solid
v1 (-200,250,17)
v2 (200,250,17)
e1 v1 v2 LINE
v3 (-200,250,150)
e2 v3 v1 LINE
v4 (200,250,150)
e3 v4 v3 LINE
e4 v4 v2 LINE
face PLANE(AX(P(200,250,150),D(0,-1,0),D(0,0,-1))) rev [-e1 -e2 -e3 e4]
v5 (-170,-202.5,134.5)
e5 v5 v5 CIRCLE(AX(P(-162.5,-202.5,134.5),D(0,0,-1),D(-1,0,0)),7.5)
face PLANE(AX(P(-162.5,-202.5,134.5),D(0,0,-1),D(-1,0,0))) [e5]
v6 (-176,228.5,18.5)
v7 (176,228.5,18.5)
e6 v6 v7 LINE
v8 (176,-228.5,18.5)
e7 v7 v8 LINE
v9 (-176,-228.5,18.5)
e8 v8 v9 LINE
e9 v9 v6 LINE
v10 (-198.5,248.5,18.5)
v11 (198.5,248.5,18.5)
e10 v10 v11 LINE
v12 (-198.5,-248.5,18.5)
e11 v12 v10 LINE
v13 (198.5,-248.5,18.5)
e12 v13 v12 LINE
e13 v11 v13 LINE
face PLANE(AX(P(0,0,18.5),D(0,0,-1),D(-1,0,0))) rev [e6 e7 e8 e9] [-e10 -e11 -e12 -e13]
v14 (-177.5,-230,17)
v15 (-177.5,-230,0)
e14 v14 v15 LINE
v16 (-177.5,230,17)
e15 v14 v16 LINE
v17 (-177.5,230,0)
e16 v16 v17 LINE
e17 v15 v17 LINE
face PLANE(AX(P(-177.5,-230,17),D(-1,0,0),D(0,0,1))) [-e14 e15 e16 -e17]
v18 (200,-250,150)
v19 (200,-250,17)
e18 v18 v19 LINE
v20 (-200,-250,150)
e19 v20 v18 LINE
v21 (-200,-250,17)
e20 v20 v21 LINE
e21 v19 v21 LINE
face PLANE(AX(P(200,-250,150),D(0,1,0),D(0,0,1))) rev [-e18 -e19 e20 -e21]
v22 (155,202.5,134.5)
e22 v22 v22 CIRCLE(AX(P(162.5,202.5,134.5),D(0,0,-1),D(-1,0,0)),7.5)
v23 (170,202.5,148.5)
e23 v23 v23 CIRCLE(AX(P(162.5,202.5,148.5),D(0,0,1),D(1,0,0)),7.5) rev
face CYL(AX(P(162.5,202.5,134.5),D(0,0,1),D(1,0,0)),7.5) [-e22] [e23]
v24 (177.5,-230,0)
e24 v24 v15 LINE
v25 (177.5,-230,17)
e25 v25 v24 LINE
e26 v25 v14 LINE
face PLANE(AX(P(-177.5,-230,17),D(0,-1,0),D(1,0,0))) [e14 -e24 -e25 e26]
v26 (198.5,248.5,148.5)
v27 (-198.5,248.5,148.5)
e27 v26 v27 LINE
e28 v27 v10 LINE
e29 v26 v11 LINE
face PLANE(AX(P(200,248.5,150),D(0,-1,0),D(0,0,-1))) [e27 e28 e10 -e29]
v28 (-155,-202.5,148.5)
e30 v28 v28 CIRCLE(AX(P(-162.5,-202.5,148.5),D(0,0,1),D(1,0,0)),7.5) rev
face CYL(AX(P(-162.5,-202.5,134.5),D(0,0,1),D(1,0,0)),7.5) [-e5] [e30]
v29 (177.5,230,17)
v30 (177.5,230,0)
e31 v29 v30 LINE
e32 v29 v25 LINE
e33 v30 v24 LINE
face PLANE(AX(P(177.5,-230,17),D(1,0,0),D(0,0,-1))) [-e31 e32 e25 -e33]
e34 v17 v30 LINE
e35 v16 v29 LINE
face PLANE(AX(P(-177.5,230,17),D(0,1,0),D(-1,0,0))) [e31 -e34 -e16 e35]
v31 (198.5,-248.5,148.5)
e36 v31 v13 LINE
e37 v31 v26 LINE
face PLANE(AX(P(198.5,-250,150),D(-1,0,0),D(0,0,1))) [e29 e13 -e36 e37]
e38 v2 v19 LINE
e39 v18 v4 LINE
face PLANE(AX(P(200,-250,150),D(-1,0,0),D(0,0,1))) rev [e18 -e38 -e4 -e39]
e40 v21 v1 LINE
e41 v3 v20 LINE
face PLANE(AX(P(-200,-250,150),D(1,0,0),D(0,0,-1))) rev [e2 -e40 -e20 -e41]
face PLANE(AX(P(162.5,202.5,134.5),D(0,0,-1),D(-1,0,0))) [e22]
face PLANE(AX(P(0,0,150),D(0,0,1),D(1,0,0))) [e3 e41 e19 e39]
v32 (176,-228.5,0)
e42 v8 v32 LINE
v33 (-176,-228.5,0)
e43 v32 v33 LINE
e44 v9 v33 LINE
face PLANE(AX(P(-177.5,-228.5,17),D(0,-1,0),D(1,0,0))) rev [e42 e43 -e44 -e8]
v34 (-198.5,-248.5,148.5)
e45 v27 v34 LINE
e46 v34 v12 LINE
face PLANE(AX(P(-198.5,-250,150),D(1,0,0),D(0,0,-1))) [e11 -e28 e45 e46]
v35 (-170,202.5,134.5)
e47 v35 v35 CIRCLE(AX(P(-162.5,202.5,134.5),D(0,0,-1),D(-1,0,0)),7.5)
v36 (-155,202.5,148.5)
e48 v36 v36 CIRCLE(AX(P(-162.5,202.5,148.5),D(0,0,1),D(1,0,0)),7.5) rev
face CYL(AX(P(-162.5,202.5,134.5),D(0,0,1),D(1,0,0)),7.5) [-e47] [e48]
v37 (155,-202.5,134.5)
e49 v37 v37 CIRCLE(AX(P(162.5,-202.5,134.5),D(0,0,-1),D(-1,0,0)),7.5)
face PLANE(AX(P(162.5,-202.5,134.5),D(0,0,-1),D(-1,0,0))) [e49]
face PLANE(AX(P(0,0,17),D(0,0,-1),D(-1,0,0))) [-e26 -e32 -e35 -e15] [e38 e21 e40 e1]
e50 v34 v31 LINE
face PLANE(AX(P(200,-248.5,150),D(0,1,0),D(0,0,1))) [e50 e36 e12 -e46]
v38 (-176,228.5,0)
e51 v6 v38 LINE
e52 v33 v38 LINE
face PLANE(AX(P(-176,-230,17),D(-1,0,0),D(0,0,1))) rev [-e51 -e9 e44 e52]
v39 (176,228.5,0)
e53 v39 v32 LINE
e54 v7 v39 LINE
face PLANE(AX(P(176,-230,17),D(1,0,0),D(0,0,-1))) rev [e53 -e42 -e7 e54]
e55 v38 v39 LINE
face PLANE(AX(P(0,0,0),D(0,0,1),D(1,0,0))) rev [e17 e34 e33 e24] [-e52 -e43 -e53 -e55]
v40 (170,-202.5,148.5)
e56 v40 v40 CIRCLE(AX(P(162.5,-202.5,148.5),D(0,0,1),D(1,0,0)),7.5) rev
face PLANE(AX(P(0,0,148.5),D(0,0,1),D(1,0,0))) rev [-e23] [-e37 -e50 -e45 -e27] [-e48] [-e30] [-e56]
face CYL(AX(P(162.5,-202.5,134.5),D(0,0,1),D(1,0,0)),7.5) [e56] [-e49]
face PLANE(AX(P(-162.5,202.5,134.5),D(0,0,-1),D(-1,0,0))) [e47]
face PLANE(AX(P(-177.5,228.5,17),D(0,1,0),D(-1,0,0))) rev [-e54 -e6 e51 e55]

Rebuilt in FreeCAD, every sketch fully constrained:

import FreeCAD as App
import Part
import Sketcher

V = App.Vector
Q = App.Units.Quantity


def faces_at(feature, points):
    """Names of the faces that lie closest to the given points."""
    faces = feature.Shape.Faces
    near = lambda p: min(range(len(faces)), key=lambda i: faces[i].distToShape(Part.Vertex(*p))[0])
    return sorted({f"Face{near(p) + 1}" for p in points})


def add_polygon(sketch, points):
    """Adds a closed chain of lines whose ends are joined by coincident constraints."""
    first, n = sketch.GeometryCount, len(points)
    for a, b in zip(points, points[1:] + points[:1]):
        sketch.addGeometry(Part.LineSegment(App.Vector(*a, 0), App.Vector(*b, 0)), False)
    for i in range(n):
        sketch.addConstraint(Sketcher.Constraint("Coincident", first + i, 2, first + (i + 1) % n, 1))

doc = App.newDocument("Part")
params = doc.addObject("Spreadsheet::Sheet", "Params")
for row, (alias, value) in enumerate([
    ("sketch1_width", "400 mm"),
    ("sketch1_height", "500 mm"),
    ("pad1_length", "150 mm"),
    ("sketch2_width", "400 mm"),
    ("sketch2_width2", "355 mm"),
    ("sketch2_height", "500 mm"),
    ("sketch2_height2", "460 mm"),
    ("pocket1_length", "17 mm"),
    ("thickness_wall", "1.5 mm"),
    ("sketch3_diameter", "15 mm"),
    ("pad2_length", "14 mm"),
], start=1):
    params.set(f"A{row}", alias)
    params.set(f"B{row}", "=" + value)
    params.setAlias(f"B{row}", alias)

body = doc.addObject("PartDesign::Body", "Body")

# Sketch on XY plane
sketch1 = body.newObject("Sketcher::SketchObject", "Sketch")
sketch1.AttachmentSupport = (doc.getObject("XY_Plane"), [""])
sketch1.MapMode = "FlatFace"
add_polygon(sketch1, [(-200, 250), (-200, -250), (200, -250), (200, 250)])  # lines 0-3
sketch1.addConstraint([
    Sketcher.Constraint("Vertical", 0),
    Sketcher.Constraint("Horizontal", 1),
    Sketcher.Constraint("Vertical", 2),
    Sketcher.Constraint("Horizontal", 3),
    Sketcher.Constraint("Symmetric", 0, 2, 2, 2, -1, 1),
    Sketcher.Constraint("DistanceX", 1, 1, 1, 2, Q("400 mm")),
    Sketcher.Constraint("DistanceY", 0, 2, 0, 1, Q("500 mm")),
])
sketch1.setExpression("Constraints[9]", "Params.sketch1_width")
sketch1.setExpression("Constraints[10]", "Params.sketch1_height")
pad1 = body.newObject("PartDesign::Pad", "Pad")
pad1.Profile = sketch1
pad1.setExpression("Length", "Params.pad1_length")

# Sketch on XY plane
sketch2 = body.newObject("Sketcher::SketchObject", "Sketch001")
sketch2.AttachmentSupport = (doc.getObject("XY_Plane"), [""])
sketch2.MapMode = "FlatFace"
add_polygon(sketch2, [(200, 250), (200, -250), (-200, -250), (-200, 250)])  # lines 0-3
add_polygon(sketch2, [(-177.5, -230), (177.5, -230), (177.5, 230), (-177.5, 230)])  # lines 4-7
sketch2.addConstraint([
    Sketcher.Constraint("Vertical", 0),
    Sketcher.Constraint("Horizontal", 1),
    Sketcher.Constraint("Vertical", 2),
    Sketcher.Constraint("Horizontal", 3),
    Sketcher.Constraint("Horizontal", 4),
    Sketcher.Constraint("Vertical", 5),
    Sketcher.Constraint("Horizontal", 6),
    Sketcher.Constraint("Vertical", 7),
    Sketcher.Constraint("Symmetric", 0, 2, 2, 2, -1, 1),
    Sketcher.Constraint("Symmetric", 4, 2, 6, 2, -1, 1),
    Sketcher.Constraint("DistanceX", 1, 2, 1, 1, Q("400 mm")),
    Sketcher.Constraint("DistanceX", 4, 1, 4, 2, Q("355 mm")),
    Sketcher.Constraint("DistanceY", 0, 2, 0, 1, Q("500 mm")),
    Sketcher.Constraint("DistanceY", 5, 1, 5, 2, Q("460 mm")),
])
sketch2.setExpression("Constraints[18]", "Params.sketch2_width")
sketch2.setExpression("Constraints[19]", "Params.sketch2_width2")
sketch2.setExpression("Constraints[20]", "Params.sketch2_height")
sketch2.setExpression("Constraints[21]", "Params.sketch2_height2")
pocket1 = body.newObject("PartDesign::Pocket", "Pocket")
pocket1.Profile = sketch2
pocket1.setExpression("Length", "Params.pocket1_length")
pocket1.Reversed = True
doc.recompute()

thickness = body.newObject("PartDesign::Thickness", "Thickness")
thickness.Base = (pocket1, faces_at(pocket1, [(0, 0, 0)]))
thickness.setExpression("Value", "Params.thickness_wall")
thickness.Reversed = True
thickness.Join = "Intersection"

# Sketch on XY plane
sketch3 = body.newObject("Sketcher::SketchObject", "Sketch002")
sketch3.AttachmentSupport = (doc.getObject("XY_Plane"), [""])
sketch3.MapMode = "FlatFace"
sketch3.AttachmentOffset = App.Placement(V(0, 0, 148.5), App.Rotation())
sketch3.addGeometry([
    Part.Circle(V(162.5, 202.5, 0), V(0, 0, 1), 7.5),
    Part.Circle(V(-162.5, 202.5, 0), V(0, 0, 1), 7.5),
    Part.Circle(V(-162.5, -202.5, 0), V(0, 0, 1), 7.5),
    Part.Circle(V(162.5, -202.5, 0), V(0, 0, 1), 7.5),
], False)
sketch3.addConstraint([
    Sketcher.Constraint("Equal", 0, 1),
    Sketcher.Constraint("Equal", 1, 2),
    Sketcher.Constraint("Equal", 2, 3),
    Sketcher.Constraint("Symmetric", 0, 3, 2, 3, -1, 1),
    Sketcher.Constraint("Symmetric", 1, 3, 3, 3, -1, 1),
    Sketcher.Constraint("Symmetric", 0, 3, 1, 3, -2),
    Sketcher.Constraint("Diameter", 0, Q("15 mm")),
    Sketcher.Constraint("DistanceX", 1, 3, 0, 3, Q("325 mm")),
    Sketcher.Constraint("DistanceY", 2, 3, 1, 3, Q("405 mm")),
])
sketch3.setExpression("Constraints[6]", "Params.sketch3_diameter")
pad2 = body.newObject("PartDesign::Pad", "Pad001")
pad2.Profile = sketch3
pad2.setExpression("Length", "Params.pad2_length")
pad2.Reversed = True

doc.recompute()
